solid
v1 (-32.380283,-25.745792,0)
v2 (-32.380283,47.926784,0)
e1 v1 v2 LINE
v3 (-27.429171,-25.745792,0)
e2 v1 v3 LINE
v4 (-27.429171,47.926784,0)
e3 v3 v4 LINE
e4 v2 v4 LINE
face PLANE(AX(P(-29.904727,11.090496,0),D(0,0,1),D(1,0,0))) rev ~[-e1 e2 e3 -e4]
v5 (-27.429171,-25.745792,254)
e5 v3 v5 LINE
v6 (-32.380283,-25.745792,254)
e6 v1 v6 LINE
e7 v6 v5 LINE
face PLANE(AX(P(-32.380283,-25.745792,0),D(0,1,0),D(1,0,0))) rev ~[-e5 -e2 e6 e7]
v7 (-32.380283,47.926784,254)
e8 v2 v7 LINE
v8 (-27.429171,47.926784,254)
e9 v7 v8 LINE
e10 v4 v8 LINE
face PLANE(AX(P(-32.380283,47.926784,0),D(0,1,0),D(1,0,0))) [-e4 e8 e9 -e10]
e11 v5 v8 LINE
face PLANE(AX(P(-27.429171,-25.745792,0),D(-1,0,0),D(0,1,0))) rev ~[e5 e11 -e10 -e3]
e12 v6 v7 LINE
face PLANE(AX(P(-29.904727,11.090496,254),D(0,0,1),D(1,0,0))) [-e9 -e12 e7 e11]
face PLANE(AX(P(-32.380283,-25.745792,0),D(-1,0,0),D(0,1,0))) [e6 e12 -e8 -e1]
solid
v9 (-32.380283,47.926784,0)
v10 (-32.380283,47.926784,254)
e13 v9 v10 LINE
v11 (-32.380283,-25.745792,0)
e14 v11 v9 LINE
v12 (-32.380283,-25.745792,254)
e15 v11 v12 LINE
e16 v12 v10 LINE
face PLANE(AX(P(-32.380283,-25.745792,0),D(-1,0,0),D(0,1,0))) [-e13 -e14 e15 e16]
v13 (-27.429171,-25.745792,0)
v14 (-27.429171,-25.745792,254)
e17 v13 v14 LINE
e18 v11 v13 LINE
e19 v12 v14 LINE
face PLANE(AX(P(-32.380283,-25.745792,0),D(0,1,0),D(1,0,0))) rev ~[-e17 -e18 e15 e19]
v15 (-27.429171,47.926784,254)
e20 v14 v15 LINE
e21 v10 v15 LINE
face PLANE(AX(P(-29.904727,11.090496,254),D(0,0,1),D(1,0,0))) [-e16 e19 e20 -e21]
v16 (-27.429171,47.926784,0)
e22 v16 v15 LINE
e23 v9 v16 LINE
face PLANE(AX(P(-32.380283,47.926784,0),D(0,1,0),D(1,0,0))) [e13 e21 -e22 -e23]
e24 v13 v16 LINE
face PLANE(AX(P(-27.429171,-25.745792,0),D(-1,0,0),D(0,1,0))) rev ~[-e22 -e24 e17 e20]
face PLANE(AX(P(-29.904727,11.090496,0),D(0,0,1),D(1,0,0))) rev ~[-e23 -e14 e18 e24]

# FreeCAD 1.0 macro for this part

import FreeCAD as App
import Part
import Sketcher

V = App.Vector

doc = App.newDocument("Part")
params = doc.addObject("Spreadsheet::Sheet", "Params")
for row, (alias, value) in enumerate([
    ("pad1_length", "10 in"),
    ("pad2_length", "10 in"),
], start=1):
    params.set(f"A{row}", alias)
    params.set(f"B{row}", "=" + value)
    params.setAlias(f"B{row}", alias)

body = doc.addObject("PartDesign::Body", "Body")

sketch1 = body.newObject("Sketcher::SketchObject", "Sketch")
sketch1.AttachmentSupport = (doc.getObject("XY_Plane"), [""])
sketch1.MapMode = "FlatFace"
sketch1.addGeometry([
    Part.LineSegment(V(-32.4, 47.9, 0), V(-32.4, -25.7, 0)),
    Part.LineSegment(V(-32.4, -25.7, 0), V(-27.4, -25.7, 0)),
    Part.LineSegment(V(-27.4, -25.7, 0), V(-27.4, 47.9, 0)),
    Part.LineSegment(V(-27.4, 47.9, 0), V(-32.4, 47.9, 0)),
], False)
sketch1.addConstraint([
    Sketcher.Constraint("Coincident", 0, 2, 1, 1),
    Sketcher.Constraint("Coincident", 1, 2, 2, 1),
    Sketcher.Constraint("Coincident", 2, 2, 3, 1),
    Sketcher.Constraint("Coincident", 3, 2, 0, 1),
    Sketcher.Constraint("Vertical", 0),
    Sketcher.Constraint("Horizontal", 1),
    Sketcher.Constraint("Vertical", 2),
    Sketcher.Constraint("Horizontal", 3),
    Sketcher.Constraint("DistanceX", 1, 1, 1, 2, 4.951112),
    Sketcher.Constraint("DistanceY", 0, 2, 0, 1, 73.672576),
    Sketcher.Constraint("DistanceX", 1, 2, -1, 1, 27.429171),
    Sketcher.Constraint("DistanceY", 0, 2, -1, 1, 25.745792),
])
pad1 = body.newObject("PartDesign::Pad", "Pad")
pad1.Profile = sketch1
pad1.setExpression("Length", "Params.pad1_length")
body2 = doc.addObject("PartDesign::Body", "Body001")

sketch2 = body2.newObject("Sketcher::SketchObject", "Sketch001")
sketch2.AttachmentSupport = (doc.getObject("XY_Plane001"), [""])
sketch2.MapMode = "FlatFace"
sketch2.addGeometry([
    Part.LineSegment(V(-32.4, 47.9, 0), V(-32.4, -25.7, 0)),
    Part.LineSegment(V(-32.4, -25.7, 0), V(-27.4, -25.7, 0)),
    Part.LineSegment(V(-27.4, -25.7, 0), V(-27.4, 47.9, 0)),
    Part.LineSegment(V(-27.4, 47.9, 0), V(-32.4, 47.9, 0)),
], False)
sketch2.addConstraint([
    Sketcher.Constraint("Coincident", 0, 2, 1, 1),
    Sketcher.Constraint("Coincident", 1, 2, 2, 1),
    Sketcher.Constraint("Coincident", 2, 2, 3, 1),
    Sketcher.Constraint("Coincident", 3, 2, 0, 1),
    Sketcher.Constraint("Vertical", 0),
    Sketcher.Constraint("Horizontal", 1),
    Sketcher.Constraint("Vertical", 2),
    Sketcher.Constraint("Horizontal", 3),
    Sketcher.Constraint("DistanceX", 1, 1, 1, 2, 4.951112),
    Sketcher.Constraint("DistanceY", 0, 2, 0, 1, 73.672576),
    Sketcher.Constraint("DistanceX", 1, 2, -1, 1, 27.429171),
    Sketcher.Constraint("DistanceY", 0, 2, -1, 1, 25.745792),
])
pad2 = body2.newObject("PartDesign::Pad", "Pad001")
pad2.Profile = sketch2
pad2.setExpression("Length", "Params.pad2_length")

doc.recompute()
